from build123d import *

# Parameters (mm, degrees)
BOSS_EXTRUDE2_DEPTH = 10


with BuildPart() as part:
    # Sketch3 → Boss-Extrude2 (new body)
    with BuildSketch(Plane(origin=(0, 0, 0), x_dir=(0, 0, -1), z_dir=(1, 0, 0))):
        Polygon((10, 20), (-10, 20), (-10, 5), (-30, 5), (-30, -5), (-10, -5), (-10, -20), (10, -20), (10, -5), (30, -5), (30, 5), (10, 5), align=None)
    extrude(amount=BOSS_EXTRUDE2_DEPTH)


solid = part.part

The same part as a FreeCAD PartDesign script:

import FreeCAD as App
import Part
import Sketcher

V = App.Vector


def add_polygon(sketch, points):
    """Adds a closed chain of lines whose ends are joined by coincident constraints."""
    first, n = sketch.GeometryCount, len(points)
    for a, b in zip(points, points[1:] + points[:1]):
        sketch.addGeometry(Part.LineSegment(App.Vector(*a, 0), App.Vector(*b, 0)), False)
    for i in range(n):
        sketch.addConstraint(Sketcher.Constraint("Coincident", first + i, 2, first + (i + 1) % n, 1))

doc = App.newDocument("Part")
body = doc.addObject("PartDesign::Body", "Body")

# Sketch on YZ plane
sketch1 = body.newObject("Sketcher::SketchObject", "Sketch")
sketch1.AttachmentSupport = (doc.getObject("YZ_Plane"), [""])
sketch1.MapMode = "FlatFace"
add_polygon(sketch1, [(20, -10), (20, 10), (5, 10), (5, 30), (-5, 30), (-5, 10), (-20, 10), (-20, -10), (-5, -10), (-5, -30), (5, -30), (5, -10)])  # lines 0-11
sketch1.addConstraint(Sketcher.Constraint("Vertical", 0))
sketch1.addConstraint(Sketcher.Constraint("Horizontal", 1))
sketch1.addConstraint(Sketcher.Constraint("Vertical", 2))
sketch1.addConstraint(Sketcher.Constraint("Horizontal", 3))
sketch1.addConstraint(Sketcher.Constraint("Vertical", 4))
sketch1.addConstraint(Sketcher.Constraint("Horizontal", 5))
sketch1.addConstraint(Sketcher.Constraint("Vertical", 6))
sketch1.addConstraint(Sketcher.Constraint("Horizontal", 7))
sketch1.addConstraint(Sketcher.Constraint("Vertical", 8))
sketch1.addConstraint(Sketcher.Constraint("Horizontal", 9))
sketch1.addConstraint(Sketcher.Constraint("Vertical", 10))
sketch1.addConstraint(Sketcher.Constraint("Horizontal", 11))
sketch1.addConstraint(Sketcher.Constraint("Symmetric", 0, 2, 6, 2, -1, 1))
sketch1.addConstraint(Sketcher.Constraint("Symmetric", 2, 2, 8, 2, -1, 1))
sketch1.addConstraint(Sketcher.Constraint("Symmetric", 4, 2, 10, 2, -1, 1))
sketch1.addConstraint(Sketcher.Constraint("Symmetric", 1, 2, 4, 2, -2))
sketch1.addConstraint(Sketcher.Constraint("Equal", 0, 2))
sketch1.addConstraint(Sketcher.Constraint("DistanceX", 1, 2, 1, 1, 15.0))
sketch1.addConstraint(Sketcher.Constraint("DistanceX", 3, 2, 3, 1, 10.0))
sketch1.addConstraint(Sketcher.Constraint("DistanceY", 0, 1, 0, 2, 20.0))
pad1 = body.newObject("PartDesign::Pad", "Pad")
pad1.Profile = sketch1
pad1.Length = 10

doc.recompute()
